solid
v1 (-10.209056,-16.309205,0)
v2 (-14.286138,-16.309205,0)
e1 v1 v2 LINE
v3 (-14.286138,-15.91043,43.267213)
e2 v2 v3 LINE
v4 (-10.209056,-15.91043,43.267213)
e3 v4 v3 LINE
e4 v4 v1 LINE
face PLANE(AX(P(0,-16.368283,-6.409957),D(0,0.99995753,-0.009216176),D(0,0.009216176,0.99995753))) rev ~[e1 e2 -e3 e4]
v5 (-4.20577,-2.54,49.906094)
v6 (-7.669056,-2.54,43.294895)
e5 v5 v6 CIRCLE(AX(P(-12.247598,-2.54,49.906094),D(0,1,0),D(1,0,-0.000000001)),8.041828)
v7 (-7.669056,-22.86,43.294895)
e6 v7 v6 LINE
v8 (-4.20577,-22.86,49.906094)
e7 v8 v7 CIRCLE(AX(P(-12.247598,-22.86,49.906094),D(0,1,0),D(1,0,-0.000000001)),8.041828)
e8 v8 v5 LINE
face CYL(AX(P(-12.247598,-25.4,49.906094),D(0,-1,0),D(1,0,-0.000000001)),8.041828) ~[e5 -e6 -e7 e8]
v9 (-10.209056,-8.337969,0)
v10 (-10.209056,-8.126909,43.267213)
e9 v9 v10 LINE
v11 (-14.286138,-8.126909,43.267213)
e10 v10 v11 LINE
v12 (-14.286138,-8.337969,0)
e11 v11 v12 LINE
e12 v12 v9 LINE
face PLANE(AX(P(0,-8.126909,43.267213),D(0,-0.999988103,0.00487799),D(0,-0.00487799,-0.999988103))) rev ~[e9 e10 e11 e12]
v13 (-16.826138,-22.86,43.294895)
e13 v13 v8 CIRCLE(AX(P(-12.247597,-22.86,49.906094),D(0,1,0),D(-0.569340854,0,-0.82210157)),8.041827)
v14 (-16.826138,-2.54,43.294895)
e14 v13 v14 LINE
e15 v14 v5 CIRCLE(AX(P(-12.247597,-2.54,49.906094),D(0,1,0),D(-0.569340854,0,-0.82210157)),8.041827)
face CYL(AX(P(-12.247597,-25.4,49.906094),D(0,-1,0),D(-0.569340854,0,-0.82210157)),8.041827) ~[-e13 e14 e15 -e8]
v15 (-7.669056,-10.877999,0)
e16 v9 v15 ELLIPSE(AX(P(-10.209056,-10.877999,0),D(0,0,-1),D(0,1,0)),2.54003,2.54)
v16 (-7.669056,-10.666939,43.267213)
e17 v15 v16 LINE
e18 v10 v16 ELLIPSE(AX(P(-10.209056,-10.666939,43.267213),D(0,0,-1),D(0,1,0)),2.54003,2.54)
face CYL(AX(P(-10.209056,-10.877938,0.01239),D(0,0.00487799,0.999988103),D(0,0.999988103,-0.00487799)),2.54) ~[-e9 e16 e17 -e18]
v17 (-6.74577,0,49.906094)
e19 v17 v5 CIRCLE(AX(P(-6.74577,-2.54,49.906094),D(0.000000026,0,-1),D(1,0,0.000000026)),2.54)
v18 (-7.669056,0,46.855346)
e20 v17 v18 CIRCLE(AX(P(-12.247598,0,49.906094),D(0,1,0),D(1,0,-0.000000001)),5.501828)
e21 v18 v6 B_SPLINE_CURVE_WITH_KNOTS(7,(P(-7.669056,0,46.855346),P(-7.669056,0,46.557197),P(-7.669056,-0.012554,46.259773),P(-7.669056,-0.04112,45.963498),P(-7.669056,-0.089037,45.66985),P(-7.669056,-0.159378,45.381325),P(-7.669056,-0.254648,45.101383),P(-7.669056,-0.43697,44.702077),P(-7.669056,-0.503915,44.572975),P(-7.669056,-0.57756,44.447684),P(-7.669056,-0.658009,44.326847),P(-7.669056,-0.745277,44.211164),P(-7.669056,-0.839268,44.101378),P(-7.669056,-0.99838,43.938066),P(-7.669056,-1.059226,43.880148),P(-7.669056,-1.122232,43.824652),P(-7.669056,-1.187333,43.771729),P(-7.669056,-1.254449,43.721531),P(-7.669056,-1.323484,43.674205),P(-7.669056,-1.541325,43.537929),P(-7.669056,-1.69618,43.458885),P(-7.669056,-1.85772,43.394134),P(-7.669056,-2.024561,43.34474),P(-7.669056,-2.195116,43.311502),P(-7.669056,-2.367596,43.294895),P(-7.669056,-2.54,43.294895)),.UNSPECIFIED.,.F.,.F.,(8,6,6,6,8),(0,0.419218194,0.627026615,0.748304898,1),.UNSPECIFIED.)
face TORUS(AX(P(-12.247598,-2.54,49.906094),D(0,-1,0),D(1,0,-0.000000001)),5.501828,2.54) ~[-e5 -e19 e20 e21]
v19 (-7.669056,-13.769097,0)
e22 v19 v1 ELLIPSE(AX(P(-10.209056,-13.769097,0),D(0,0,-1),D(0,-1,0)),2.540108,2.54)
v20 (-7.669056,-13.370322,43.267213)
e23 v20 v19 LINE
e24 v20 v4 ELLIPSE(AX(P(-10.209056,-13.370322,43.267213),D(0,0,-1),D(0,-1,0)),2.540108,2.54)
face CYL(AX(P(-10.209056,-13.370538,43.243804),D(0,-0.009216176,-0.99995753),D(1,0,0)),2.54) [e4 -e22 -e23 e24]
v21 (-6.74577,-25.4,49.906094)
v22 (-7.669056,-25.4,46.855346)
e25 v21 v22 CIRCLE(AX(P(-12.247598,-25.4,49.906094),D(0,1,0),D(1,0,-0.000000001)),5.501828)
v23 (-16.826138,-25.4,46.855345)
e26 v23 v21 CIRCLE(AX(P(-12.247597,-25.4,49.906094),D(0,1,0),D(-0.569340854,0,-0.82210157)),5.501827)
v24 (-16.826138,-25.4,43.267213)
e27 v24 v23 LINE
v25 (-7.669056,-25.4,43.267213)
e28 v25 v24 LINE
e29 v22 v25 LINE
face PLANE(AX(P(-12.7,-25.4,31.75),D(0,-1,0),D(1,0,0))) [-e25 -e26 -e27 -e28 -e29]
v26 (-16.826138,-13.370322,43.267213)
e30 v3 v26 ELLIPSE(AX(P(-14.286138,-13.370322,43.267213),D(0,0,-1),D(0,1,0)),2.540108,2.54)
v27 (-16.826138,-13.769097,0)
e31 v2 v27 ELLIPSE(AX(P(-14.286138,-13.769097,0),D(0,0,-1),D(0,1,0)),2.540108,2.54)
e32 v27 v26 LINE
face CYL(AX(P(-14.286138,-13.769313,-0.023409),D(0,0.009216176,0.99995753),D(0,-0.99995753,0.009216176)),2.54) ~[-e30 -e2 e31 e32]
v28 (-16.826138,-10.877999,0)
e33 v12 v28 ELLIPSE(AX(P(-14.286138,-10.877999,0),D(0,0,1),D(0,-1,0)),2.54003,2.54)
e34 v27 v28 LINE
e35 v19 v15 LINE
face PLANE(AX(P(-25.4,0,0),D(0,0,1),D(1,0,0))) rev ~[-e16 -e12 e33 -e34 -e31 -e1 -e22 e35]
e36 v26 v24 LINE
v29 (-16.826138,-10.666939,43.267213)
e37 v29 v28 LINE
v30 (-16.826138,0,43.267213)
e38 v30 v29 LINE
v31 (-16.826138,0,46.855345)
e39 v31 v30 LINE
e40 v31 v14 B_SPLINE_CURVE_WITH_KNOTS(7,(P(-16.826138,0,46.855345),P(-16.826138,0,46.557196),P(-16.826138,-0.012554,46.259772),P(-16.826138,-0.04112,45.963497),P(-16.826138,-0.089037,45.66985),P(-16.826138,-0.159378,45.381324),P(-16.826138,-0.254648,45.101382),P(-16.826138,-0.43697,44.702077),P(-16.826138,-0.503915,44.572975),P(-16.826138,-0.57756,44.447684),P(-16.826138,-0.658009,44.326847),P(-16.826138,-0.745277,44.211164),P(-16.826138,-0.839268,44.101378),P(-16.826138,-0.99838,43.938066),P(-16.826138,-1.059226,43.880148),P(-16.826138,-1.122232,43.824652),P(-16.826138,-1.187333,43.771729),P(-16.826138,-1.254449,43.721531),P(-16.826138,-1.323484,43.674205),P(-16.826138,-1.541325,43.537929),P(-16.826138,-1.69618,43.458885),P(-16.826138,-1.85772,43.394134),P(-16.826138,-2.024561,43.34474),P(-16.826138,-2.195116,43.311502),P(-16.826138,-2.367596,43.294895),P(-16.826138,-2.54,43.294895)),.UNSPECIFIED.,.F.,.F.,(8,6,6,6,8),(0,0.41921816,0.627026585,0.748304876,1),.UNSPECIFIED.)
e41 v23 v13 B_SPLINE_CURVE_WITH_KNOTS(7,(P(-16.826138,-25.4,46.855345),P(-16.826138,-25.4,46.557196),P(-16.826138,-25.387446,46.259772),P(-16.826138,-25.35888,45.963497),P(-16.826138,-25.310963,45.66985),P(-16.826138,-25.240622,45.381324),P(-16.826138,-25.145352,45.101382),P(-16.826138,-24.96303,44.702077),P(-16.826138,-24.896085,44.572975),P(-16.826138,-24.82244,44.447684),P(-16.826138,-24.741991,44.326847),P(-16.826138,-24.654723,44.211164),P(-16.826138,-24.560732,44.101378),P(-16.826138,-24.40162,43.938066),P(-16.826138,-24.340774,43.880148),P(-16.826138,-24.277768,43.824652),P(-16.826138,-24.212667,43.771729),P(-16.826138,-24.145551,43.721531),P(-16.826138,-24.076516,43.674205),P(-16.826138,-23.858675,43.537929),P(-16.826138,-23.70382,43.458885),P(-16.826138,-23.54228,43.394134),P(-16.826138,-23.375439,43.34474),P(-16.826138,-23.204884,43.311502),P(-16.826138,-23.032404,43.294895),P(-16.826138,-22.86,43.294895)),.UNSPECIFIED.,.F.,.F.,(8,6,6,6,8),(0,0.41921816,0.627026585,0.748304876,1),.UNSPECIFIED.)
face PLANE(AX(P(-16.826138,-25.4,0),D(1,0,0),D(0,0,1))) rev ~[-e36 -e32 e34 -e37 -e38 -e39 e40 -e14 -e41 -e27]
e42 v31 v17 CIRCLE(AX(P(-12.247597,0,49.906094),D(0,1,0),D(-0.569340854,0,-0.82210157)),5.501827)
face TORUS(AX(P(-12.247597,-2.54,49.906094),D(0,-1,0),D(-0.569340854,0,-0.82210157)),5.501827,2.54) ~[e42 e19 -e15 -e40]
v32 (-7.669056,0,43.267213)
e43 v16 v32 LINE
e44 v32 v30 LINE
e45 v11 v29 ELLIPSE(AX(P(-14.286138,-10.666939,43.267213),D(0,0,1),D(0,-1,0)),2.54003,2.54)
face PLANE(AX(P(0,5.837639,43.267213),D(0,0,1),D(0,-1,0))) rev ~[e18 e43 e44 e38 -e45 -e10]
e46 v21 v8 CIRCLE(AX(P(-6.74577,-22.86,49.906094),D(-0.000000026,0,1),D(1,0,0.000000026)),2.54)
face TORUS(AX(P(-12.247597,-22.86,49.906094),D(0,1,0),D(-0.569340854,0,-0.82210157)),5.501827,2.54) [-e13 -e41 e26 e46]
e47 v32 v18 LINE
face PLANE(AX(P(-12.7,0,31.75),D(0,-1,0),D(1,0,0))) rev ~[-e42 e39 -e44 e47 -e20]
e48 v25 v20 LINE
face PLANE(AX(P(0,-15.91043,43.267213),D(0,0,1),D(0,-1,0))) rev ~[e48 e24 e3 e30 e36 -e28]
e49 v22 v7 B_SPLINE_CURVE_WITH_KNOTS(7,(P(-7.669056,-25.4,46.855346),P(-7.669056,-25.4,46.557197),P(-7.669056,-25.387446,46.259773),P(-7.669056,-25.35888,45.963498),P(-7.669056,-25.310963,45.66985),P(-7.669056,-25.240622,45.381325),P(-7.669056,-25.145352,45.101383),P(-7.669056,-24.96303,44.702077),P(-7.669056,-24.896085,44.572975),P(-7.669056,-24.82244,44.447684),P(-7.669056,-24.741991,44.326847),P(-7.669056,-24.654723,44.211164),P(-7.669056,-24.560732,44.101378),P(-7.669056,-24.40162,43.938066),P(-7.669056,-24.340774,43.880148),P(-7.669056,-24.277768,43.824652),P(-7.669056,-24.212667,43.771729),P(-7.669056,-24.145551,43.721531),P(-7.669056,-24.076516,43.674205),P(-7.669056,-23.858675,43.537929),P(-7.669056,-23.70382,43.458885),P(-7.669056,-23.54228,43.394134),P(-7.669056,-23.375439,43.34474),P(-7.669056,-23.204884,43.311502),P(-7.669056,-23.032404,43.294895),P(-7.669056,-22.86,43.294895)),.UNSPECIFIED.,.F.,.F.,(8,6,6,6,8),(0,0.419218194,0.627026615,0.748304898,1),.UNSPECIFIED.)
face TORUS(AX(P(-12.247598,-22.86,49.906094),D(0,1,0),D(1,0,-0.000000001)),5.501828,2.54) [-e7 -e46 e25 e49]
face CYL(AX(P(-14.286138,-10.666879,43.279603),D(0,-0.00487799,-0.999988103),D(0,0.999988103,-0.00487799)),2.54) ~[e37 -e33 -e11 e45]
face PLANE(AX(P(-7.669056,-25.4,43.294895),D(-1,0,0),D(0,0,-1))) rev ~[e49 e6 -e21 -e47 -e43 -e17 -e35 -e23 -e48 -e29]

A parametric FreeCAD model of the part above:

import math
import FreeCAD as App
import Part
import Sketcher
Q = App.Units.Quantity


def edges_at(feature, points):
    """Names of the edges that pass closest to the given points."""
    edges = feature.Shape.Edges
    near = lambda p: min(range(len(edges)), key=lambda i: edges[i].distToShape(Part.Vertex(*p))[0])
    return sorted({f"Edge{near(p) + 1}" for p in points})


def add_polygon(sketch, points):
    """Adds a closed chain of lines whose ends are joined by coincident constraints."""
    first, n = sketch.GeometryCount, len(points)
    for a, b in zip(points, points[1:] + points[:1]):
        sketch.addGeometry(Part.LineSegment(App.Vector(*a, 0), App.Vector(*b, 0)), False)
    for i in range(n):
        sketch.addConstraint(Sketcher.Constraint("Coincident", first + i, 2, first + (i + 1) % n, 1))

doc = App.newDocument("Part")
body = doc.addObject("PartDesign::Body", "Body")

# Sketch on XZ plane
sketch1 = body.newObject("Sketcher::SketchObject", "Sketch")
sketch1.AttachmentSupport = (doc.getObject("XZ_Plane"), [""])
sketch1.MapMode = "FlatFace"
add_polygon(sketch1, [(-25, 64), (-25, 0), (0, 0), (0, 64)])  # lines 0-3
sketch1.addConstraint(Sketcher.Constraint("Vertical", 0))
sketch1.addConstraint(Sketcher.Constraint("Horizontal", 1))
sketch1.addConstraint(Sketcher.Constraint("Vertical", 2))
sketch1.addConstraint(Sketcher.Constraint("Horizontal", 3))
sketch1.addConstraint(Sketcher.Constraint("Coincident", 1, 2, -1, 1))
sketch1.addConstraint(Sketcher.Constraint("DistanceX", 1, 1, 1, 2, Q("1 in")))
sketch1.addConstraint(Sketcher.Constraint("DistanceY", 0, 2, 0, 1, Q("2.5 in")))
pad1 = body.newObject("PartDesign::Pad", "Pad")
pad1.Profile = sketch1
pad1.Length = Q("1 in")

# Sketch on XZ plane
sketch2 = body.newObject("Sketcher::SketchObject", "Sketch001")
sketch2.AttachmentSupport = (doc.getObject("XZ_Plane"), [""])
sketch2.MapMode = "FlatFace"
sketch2.AttachmentOffset = App.Placement(App.Vector(0, 0, 1 * 25.4), App.Rotation())
sketch2.addGeometry(Part.LineSegment(App.Vector(-17, 0, 0), App.Vector(-17, 43, 0)), False)
sketch2.addGeometry(Part.ArcOfCircle(Part.Circle(App.Vector(-12, 50, 0), App.Vector(0, 0, 1), 8), math.radians(0), math.radians(235)), False)
sketch2.addGeometry(Part.ArcOfCircle(Part.Circle(App.Vector(-12, 50, 0), App.Vector(0, 0, 1), 8), math.radians(-55), math.radians(0)), False)
sketch2.addGeometry(Part.LineSegment(App.Vector(-8, 43, 0), App.Vector(-8, 0, 0)), False)
sketch2.addGeometry(Part.LineSegment(App.Vector(-8, 0, 0), App.Vector(0, 0, 0)), False)
sketch2.addGeometry(Part.LineSegment(App.Vector(0, 0, 0), App.Vector(0, 64, 0)), False)
sketch2.addGeometry(Part.LineSegment(App.Vector(0, 64, 0), App.Vector(-25, 64, 0)), False)
sketch2.addGeometry(Part.LineSegment(App.Vector(-25, 64, 0), App.Vector(-25, 0, 0)), False)
sketch2.addGeometry(Part.LineSegment(App.Vector(-25, 0, 0), App.Vector(-17, 0, 0)), False)
sketch2.addConstraint(Sketcher.Constraint("Coincident", 0, 2, 1, 2))
sketch2.addConstraint(Sketcher.Constraint("Tangent", 1, 1, 2, 2))
sketch2.addConstraint(Sketcher.Constraint("Coincident", 2, 1, 3, 1))
sketch2.addConstraint(Sketcher.Constraint("Coincident", 3, 2, 4, 1))
sketch2.addConstraint(Sketcher.Constraint("Coincident", 4, 2, 5, 1))
sketch2.addConstraint(Sketcher.Constraint("Coincident", 5, 2, 6, 1))
sketch2.addConstraint(Sketcher.Constraint("Coincident", 6, 2, 7, 1))
sketch2.addConstraint(Sketcher.Constraint("Coincident", 7, 2, 8, 1))
sketch2.addConstraint(Sketcher.Constraint("Coincident", 8, 2, 0, 1))
sketch2.addConstraint(Sketcher.Constraint("Vertical", 0))
sketch2.addConstraint(Sketcher.Constraint("Vertical", 3))
sketch2.addConstraint(Sketcher.Constraint("Horizontal", 4))
sketch2.addConstraint(Sketcher.Constraint("Vertical", 5))
sketch2.addConstraint(Sketcher.Constraint("Horizontal", 6))
sketch2.addConstraint(Sketcher.Constraint("Vertical", 7))
sketch2.addConstraint(Sketcher.Constraint("Horizontal", 8))
sketch2.addConstraint(Sketcher.Constraint("Coincident", 4, 2, -1, 1))
sketch2.addConstraint(Sketcher.Constraint("Equal", 1, 2))
sketch2.addConstraint(Sketcher.Constraint("PointOnObject", 7, 2, -1))
sketch2.addConstraint(Sketcher.Constraint("Horizontal", 2, 3, 1, 1))
sketch2.addConstraint(Sketcher.Constraint("Horizontal", 0, 2, 2, 1))
sketch2.addConstraint(Sketcher.Constraint("DistanceX", 6, 2, 6, 1, Q("1 in")))
sketch2.addConstraint(Sketcher.Constraint("DistanceY", 5, 1, 5, 2, Q("2.5 in")))
sketch2.addConstraint(Sketcher.Constraint("Radius", 2, 8.041828))
sketch2.addConstraint(Sketcher.Constraint("DistanceX", 8, 1, 8, 2, 8.573862))
sketch2.addConstraint(Sketcher.Constraint("DistanceX", 2, 3, -1, 1, 12.247598))
sketch2.addConstraint(Sketcher.Constraint("DistanceY", 0, 1, 0, 2, 43.294895))
pocket1 = body.newObject("PartDesign::Pocket", "Pocket")
pocket1.Profile = sketch2
pocket1.Length = Q("1 in")

# Sketch on YZ plane
sketch3 = body.newObject("Sketcher::SketchObject", "Sketch002")
sketch3.AttachmentSupport = (doc.getObject("YZ_Plane"), [""])
sketch3.MapMode = "FlatFace"
add_polygon(sketch3, [(6, 43), (-8, 43), (-8, -4), (6, -4)])  # lines 0-3
sketch3.addConstraint(Sketcher.Constraint("Horizontal", 0))
sketch3.addConstraint(Sketcher.Constraint("Horizontal", 2))
sketch3.addConstraint(Sketcher.Constraint("Vertical", 3))
sketch3.addConstraint(Sketcher.Constraint("DistanceX", 0, 2, 0, 1, 13.964548))
sketch3.addConstraint(Sketcher.Constraint("DistanceX", 2, 1, 2, 2, 14.193475))
sketch3.addConstraint(Sketcher.Constraint("DistanceY", 3, 1, 3, 2, 46.930046))
sketch3.addConstraint(Sketcher.Constraint("DistanceX", 0, 2, -1, 1, 8.126909))
sketch3.addConstraint(Sketcher.Constraint("DistanceY", -1, 1, 0, 2, 43.267213))
pocket2 = body.newObject("PartDesign::Pocket", "Pocket001")
pocket2.Profile = sketch3
pocket2.Length = Q("1 in")

# Sketch on YZ plane
sketch4 = body.newObject("Sketcher::SketchObject", "Sketch003")
sketch4.AttachmentSupport = (doc.getObject("YZ_Plane"), [""])
sketch4.MapMode = "FlatFace"
add_polygon(sketch4, [(-16, -6), (-16, 43), (-33, 43), (-33, -6)])  # lines 0-3
sketch4.addConstraint(Sketcher.Constraint("Horizontal", 1))
sketch4.addConstraint(Sketcher.Constraint("Vertical", 2))
sketch4.addConstraint(Sketcher.Constraint("Horizontal", 3))
sketch4.addConstraint(Sketcher.Constraint("DistanceX", 3, 1, 3, 2, 16.25382))
sketch4.addConstraint(Sketcher.Constraint("DistanceY", 2, 2, 2, 1, 49.67717))
sketch4.addConstraint(Sketcher.Constraint("Distance", 0, 49.67928))
sketch4.addConstraint(Sketcher.Constraint("DistanceX", 0, 2, -1, 1, 15.91043))
sketch4.addConstraint(Sketcher.Constraint("DistanceY", -1, 1, 0, 2, 43.267213))
pocket3 = body.newObject("PartDesign::Pocket", "Pocket002")
pocket3.Profile = sketch4
pocket3.Length = Q("1 in")
doc.recompute()

fillet = body.newObject("PartDesign::Fillet", "Fillet")
fillet.Base = (pocket3, edges_at(pocket3, [
    (-16.826, -8.232, 21.634),
    (-16.826, -16.11, 21.634),
    (-7.669, -16.11, 21.634),
    (-7.669, -8.232, 21.634),
    (-15.979, -25.4, 57.03),
    (-15.979, 0, 57.03),
]))
fillet.Radius = Q("0.1 in")

doc.recompute()
